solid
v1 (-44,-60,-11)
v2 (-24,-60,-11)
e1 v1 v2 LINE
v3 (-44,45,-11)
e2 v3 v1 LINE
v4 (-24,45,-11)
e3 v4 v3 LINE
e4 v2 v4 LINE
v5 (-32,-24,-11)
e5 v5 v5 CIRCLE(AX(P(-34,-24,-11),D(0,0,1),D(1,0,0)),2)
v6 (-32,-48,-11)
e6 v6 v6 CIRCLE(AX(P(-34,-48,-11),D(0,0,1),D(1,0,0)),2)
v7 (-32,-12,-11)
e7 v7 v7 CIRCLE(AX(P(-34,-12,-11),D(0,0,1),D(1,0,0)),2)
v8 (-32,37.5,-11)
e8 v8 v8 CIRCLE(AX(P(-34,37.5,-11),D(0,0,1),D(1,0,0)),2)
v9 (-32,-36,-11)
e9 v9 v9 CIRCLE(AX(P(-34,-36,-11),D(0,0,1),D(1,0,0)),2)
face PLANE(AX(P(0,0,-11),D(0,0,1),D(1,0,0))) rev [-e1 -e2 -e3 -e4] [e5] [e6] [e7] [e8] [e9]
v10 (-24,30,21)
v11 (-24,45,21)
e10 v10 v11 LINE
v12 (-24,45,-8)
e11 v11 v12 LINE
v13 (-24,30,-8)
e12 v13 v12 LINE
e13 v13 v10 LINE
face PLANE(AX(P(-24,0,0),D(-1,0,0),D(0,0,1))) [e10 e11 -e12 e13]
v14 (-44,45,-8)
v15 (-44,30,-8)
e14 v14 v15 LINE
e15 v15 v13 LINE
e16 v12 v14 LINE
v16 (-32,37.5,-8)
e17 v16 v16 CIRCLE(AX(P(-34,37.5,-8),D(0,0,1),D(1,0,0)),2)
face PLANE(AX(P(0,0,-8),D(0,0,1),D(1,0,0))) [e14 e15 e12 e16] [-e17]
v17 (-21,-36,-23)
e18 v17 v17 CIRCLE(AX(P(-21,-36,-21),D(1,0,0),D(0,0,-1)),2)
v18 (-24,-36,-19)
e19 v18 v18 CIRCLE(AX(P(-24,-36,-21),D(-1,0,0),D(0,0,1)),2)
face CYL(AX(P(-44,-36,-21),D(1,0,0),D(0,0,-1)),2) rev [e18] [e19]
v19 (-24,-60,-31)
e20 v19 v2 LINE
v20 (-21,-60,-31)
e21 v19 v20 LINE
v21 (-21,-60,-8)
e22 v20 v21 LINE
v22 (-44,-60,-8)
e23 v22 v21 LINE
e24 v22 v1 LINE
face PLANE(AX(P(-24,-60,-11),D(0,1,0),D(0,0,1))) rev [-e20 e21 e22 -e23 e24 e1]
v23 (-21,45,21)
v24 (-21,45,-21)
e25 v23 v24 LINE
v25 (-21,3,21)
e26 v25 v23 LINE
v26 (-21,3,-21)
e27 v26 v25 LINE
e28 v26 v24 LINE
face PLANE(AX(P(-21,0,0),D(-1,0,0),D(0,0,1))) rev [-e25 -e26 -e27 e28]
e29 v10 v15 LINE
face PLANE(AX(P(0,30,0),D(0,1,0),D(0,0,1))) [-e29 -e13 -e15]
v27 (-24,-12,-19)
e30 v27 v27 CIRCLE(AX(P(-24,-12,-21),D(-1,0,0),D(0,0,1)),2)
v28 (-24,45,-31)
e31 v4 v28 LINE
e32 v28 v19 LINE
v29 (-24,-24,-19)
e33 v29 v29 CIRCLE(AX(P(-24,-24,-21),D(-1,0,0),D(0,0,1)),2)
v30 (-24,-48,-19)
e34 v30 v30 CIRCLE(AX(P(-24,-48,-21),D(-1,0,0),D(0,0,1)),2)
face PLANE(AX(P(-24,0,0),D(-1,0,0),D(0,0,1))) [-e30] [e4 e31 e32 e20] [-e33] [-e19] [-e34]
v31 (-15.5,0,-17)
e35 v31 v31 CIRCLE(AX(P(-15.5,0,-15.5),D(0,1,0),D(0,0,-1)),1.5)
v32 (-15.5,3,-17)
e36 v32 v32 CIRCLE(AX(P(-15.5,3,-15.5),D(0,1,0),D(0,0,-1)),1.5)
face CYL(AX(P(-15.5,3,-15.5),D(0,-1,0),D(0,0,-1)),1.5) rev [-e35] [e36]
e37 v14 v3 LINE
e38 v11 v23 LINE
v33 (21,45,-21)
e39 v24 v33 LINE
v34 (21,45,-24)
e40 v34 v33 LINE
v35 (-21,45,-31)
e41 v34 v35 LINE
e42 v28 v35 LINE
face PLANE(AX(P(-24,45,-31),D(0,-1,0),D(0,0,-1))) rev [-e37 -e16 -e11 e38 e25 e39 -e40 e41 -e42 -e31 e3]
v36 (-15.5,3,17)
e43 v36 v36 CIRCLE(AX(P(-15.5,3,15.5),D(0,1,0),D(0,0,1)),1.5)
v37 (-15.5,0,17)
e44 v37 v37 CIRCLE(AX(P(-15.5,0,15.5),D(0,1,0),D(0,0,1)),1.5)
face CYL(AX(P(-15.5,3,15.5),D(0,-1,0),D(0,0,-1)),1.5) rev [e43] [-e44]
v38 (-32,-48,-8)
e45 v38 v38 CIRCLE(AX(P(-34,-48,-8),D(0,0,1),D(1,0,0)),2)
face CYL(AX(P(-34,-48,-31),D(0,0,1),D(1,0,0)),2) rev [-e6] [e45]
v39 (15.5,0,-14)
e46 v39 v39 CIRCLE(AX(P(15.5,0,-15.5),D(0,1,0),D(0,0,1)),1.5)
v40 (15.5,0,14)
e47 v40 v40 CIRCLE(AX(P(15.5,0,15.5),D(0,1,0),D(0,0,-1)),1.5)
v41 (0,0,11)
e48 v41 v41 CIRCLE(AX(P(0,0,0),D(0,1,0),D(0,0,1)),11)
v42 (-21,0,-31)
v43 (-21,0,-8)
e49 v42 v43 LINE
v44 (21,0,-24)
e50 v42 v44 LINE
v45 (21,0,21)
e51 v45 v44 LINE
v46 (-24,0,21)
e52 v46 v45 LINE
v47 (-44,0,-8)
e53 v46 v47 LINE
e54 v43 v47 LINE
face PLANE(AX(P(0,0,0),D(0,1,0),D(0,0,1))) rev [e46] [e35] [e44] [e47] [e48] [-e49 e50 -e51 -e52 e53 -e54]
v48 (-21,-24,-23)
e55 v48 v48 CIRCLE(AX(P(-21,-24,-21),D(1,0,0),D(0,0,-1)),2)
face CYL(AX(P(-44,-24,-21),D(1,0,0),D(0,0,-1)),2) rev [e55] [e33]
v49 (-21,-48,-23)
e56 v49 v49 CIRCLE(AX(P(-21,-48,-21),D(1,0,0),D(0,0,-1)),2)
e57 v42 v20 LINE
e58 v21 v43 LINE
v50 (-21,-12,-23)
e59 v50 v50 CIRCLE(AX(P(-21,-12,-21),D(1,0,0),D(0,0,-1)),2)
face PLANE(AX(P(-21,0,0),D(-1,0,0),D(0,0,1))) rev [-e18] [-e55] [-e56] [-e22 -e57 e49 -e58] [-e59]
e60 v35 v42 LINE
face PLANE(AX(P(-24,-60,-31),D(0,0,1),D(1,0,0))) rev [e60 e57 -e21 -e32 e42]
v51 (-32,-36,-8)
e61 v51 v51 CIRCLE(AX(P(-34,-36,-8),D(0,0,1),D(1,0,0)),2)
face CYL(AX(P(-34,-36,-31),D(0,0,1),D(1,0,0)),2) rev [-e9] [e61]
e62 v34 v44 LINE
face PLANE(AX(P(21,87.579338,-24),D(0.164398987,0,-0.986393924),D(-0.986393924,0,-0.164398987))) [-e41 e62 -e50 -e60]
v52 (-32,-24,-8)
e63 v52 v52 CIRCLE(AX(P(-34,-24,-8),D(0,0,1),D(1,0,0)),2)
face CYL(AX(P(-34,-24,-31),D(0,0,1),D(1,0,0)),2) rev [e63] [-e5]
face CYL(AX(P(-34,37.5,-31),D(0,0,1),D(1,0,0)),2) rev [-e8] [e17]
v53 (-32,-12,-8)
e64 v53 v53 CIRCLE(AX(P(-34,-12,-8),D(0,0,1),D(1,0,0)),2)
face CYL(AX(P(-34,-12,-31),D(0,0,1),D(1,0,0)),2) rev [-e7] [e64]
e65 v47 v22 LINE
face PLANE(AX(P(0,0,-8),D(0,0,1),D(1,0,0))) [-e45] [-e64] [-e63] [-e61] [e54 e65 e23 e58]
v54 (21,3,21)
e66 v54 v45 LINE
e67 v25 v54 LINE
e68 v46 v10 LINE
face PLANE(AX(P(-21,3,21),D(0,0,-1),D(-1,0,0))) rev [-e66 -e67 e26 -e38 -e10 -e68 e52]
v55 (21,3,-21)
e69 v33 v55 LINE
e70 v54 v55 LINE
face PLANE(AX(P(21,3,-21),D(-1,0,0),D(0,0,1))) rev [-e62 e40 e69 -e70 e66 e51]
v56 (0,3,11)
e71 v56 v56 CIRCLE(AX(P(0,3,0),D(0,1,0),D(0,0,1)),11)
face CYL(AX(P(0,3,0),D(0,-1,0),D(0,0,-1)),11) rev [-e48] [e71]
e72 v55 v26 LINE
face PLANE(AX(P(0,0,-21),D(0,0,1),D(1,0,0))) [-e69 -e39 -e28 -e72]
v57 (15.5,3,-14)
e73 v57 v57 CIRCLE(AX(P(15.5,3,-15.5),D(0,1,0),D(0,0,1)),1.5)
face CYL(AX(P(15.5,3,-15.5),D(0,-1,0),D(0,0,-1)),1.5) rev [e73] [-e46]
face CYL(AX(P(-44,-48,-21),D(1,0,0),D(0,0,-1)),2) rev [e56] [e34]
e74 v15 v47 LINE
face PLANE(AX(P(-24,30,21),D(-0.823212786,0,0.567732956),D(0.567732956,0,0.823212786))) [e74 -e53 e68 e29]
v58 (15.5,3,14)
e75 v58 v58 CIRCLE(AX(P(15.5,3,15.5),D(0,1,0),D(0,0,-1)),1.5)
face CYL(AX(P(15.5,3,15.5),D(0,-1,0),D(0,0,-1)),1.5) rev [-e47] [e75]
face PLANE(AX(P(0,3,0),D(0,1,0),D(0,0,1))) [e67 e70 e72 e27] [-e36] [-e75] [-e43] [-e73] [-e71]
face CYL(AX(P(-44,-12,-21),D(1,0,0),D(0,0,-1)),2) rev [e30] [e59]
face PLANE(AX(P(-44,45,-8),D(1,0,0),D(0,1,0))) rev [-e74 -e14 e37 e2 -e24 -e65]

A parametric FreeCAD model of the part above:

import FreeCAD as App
import Part
import Sketcher


def add_polygon(sketch, points):
    """Adds a closed chain of lines whose ends are joined by coincident constraints."""
    first, n = sketch.GeometryCount, len(points)
    for a, b in zip(points, points[1:] + points[:1]):
        sketch.addGeometry(Part.LineSegment(App.Vector(*a, 0), App.Vector(*b, 0)), False)
    for i in range(n):
        sketch.addConstraint(Sketcher.Constraint("Coincident", first + i, 2, first + (i + 1) % n, 1))

doc = App.newDocument("Part")
params = doc.addObject("Spreadsheet::Sheet", "Params")
for row, (alias, value) in enumerate([
    ("sketch1_diameter", "3 mm"),
    ("sketch1_diameter2", "22 mm"),
    ("sketch1_width", "42 mm"),
    ("pad1_length", "3 mm"),
    ("sketch2_width", "60 mm"),
    ("sketch2_width2", "45 mm"),
    ("sketch2_height", "32 mm"),
    ("sketch2_height2", "52 mm"),
    ("pad2_length", "3 mm"),
    ("sketch3_width", "42 mm"),
    ("sketch3_height", "45 mm"),
    ("pad3_length", "3 mm"),
    ("sketch4_width", "23 mm"),
    ("sketch4_width2", "3 mm"),
    ("sketch4_height", "60 mm"),
    ("sketch4_height2", "45 mm"),
    ("pad4_length", "3 mm"),
    ("sketch5_width", "20 mm"),
    ("sketch5_height", "29 mm"),
    ("pad5_length", "30 mm"),
    ("sketch6_diameter", "4 mm"),
    ("sketch7_width", "42 mm"),
    ("sketch7_height", "7 mm"),
    ("pad6_length", "45 mm"),
    ("sketch8_diameter", "4 mm"),
], start=1):
    params.set(f"A{row}", alias)
    params.set(f"B{row}", "=" + value)
    params.setAlias(f"B{row}", alias)

body = doc.addObject("PartDesign::Body", "Body")

# Sketch on XZ plane
sketch1 = doc.addObject("Sketcher::SketchObject", "Sketch")
body.addObject(sketch1)
sketch1.AttachmentSupport = (doc.XZ_Plane, [""])
sketch1.MapMode = "FlatFace"
add_polygon(sketch1, [(-21, -21), (-21, 21), (21, 21), (21, -21)])  # lines 0-3
sketch1.addGeometry(Part.Circle(App.Vector(-15.5, 15.5, 0), App.Vector(0, 0, 1), 1.5), False)  # 4
sketch1.addGeometry(Part.Circle(App.Vector(15.5, 15.5, 0), App.Vector(0, 0, 1), 1.5), False)  # 5
sketch1.addGeometry(Part.Circle(App.Vector(-15.5, -15.5, 0), App.Vector(0, 0, 1), 1.5), False)  # 6
sketch1.addGeometry(Part.Circle(App.Vector(0, 0, 0), App.Vector(0, 0, 1), 11), False)  # 7
sketch1.addGeometry(Part.Circle(App.Vector(15.5, -15.5, 0), App.Vector(0, 0, 1), 1.5), False)  # 8
sketch1.addConstraint([
    Sketcher.Constraint("Vertical", 0),
    Sketcher.Constraint("Horizontal", 1),
    Sketcher.Constraint("Vertical", 2),
    Sketcher.Constraint("Horizontal", 3),
    Sketcher.Constraint("Coincident", 7, 3, -1, 1),
    Sketcher.Constraint("Equal", 4, 5),
    Sketcher.Constraint("Equal", 5, 6),
    Sketcher.Constraint("Equal", 6, 8),
    Sketcher.Constraint("Symmetric", 5, 3, 6, 3, -1, 1),
    Sketcher.Constraint("Symmetric", 4, 3, 8, 3, -1, 1),
    Sketcher.Constraint("Symmetric", 0, 2, 2, 2, -1, 1),
    Sketcher.Constraint("Symmetric", 4, 3, 5, 3, -2),
    Sketcher.Constraint("Equal", 3, 0),
    Sketcher.Constraint("Diameter", 4, 3.0),
    Sketcher.Constraint("Diameter", 7, 22.0),
    Sketcher.Constraint("DistanceX", 1, 1, 1, 2, 42.0),
    Sketcher.Constraint("DistanceX", 4, 3, 5, 3, 31.0),
    Sketcher.Constraint("DistanceY", 6, 3, 4, 3, 31.0),
])
sketch1.setExpression("Constraints[17]", "Params.sketch1_diameter")
sketch1.setExpression("Constraints[18]", "Params.sketch1_diameter2")
sketch1.setExpression("Constraints[19]", "Params.sketch1_width")
pad1 = doc.addObject("PartDesign::Pad", "Pad")
body.addObject(pad1)
pad1.Profile = sketch1
pad1.setExpression("Length", "Params.pad1_length")
pad1.Reversed = True

# Sketch on YZ plane
sketch2 = doc.addObject("Sketcher::SketchObject", "Sketch001")
body.addObject(sketch2)
sketch2.AttachmentSupport = (doc.YZ_Plane, [""])
sketch2.MapMode = "FlatFace"
sketch2.AttachmentOffset = App.Placement(App.Vector(0, 0, -21), App.Rotation())
add_polygon(sketch2, [(-60, -11), (0, -11), (0, 21), (45, 21), (45, -31), (-60, -31)])  # lines 0-5
sketch2.addConstraint([
    Sketcher.Constraint("Horizontal", 0),
    Sketcher.Constraint("Vertical", 1),
    Sketcher.Constraint("Horizontal", 2),
    Sketcher.Constraint("Vertical", 3),
    Sketcher.Constraint("Horizontal", 4),
    Sketcher.Constraint("Vertical", 5),
    Sketcher.Constraint("PointOnObject", 0, 2, -2),
    Sketcher.Constraint("DistanceX", 0, 1, 0, 2, 60.0),
    Sketcher.Constraint("DistanceX", 2, 1, 2, 2, 45.0),
    Sketcher.Constraint("DistanceY", 1, 1, 1, 2, 32.0),
    Sketcher.Constraint("DistanceY", 3, 2, 3, 1, 52.0),
    Sketcher.Constraint("DistanceY", 0, 2, -1, 1, 11.0),
])
sketch2.setExpression("Constraints[13]", "Params.sketch2_width")
sketch2.setExpression("Constraints[14]", "Params.sketch2_width2")
sketch2.setExpression("Constraints[15]", "Params.sketch2_height")
sketch2.setExpression("Constraints[16]", "Params.sketch2_height2")
pad2 = doc.addObject("PartDesign::Pad", "Pad001")
body.addObject(pad2)
pad2.Profile = sketch2
pad2.setExpression("Length", "Params.pad2_length")
pad2.Reversed = True

# Sketch on XY plane
sketch3 = doc.addObject("Sketcher::SketchObject", "Sketch002")
body.addObject(sketch3)
sketch3.AttachmentSupport = (doc.XY_Plane, [""])
sketch3.MapMode = "FlatFace"
sketch3.AttachmentOffset = App.Placement(App.Vector(0, 0, -21), App.Rotation())
add_polygon(sketch3, [(21, 45), (21, 0), (-21, 0), (-21, 45)])  # lines 0-3
sketch3.addConstraint([
    Sketcher.Constraint("Vertical", 0),
    Sketcher.Constraint("Horizontal", 1),
    Sketcher.Constraint("Vertical", 2),
    Sketcher.Constraint("Horizontal", 3),
    Sketcher.Constraint("Symmetric", 0, 2, 1, 2, -1, 1),
    Sketcher.Constraint("DistanceX", 1, 2, 1, 1, 42.0),
    Sketcher.Constraint("DistanceY", 0, 2, 0, 1, 45.0),
])
sketch3.setExpression("Constraints[9]", "Params.sketch3_width")
sketch3.setExpression("Constraints[10]", "Params.sketch3_height")
pad3 = doc.addObject("PartDesign::Pad", "Pad002")
body.addObject(pad3)
pad3.Profile = sketch3
pad3.setExpression("Length", "Params.pad3_length")
pad3.Reversed = True

# Sketch on XY plane
sketch4 = doc.addObject("Sketcher::SketchObject", "Sketch003")
body.addObject(sketch4)
sketch4.AttachmentSupport = (doc.XY_Plane, [""])
sketch4.MapMode = "FlatFace"
sketch4.AttachmentOffset = App.Placement(App.Vector(0, 0, -11), App.Rotation())
add_polygon(sketch4, [(-44, -60), (-21, -60), (-21, 0), (-24, 0), (-24, 45), (-44, 45)])  # lines 0-5
sketch4.addConstraint([
    Sketcher.Constraint("Horizontal", 0),
    Sketcher.Constraint("Vertical", 1),
    Sketcher.Constraint("Horizontal", 2),
    Sketcher.Constraint("Vertical", 3),
    Sketcher.Constraint("Horizontal", 4),
    Sketcher.Constraint("Vertical", 5),
    Sketcher.Constraint("PointOnObject", 1, 2, -1),
    Sketcher.Constraint("DistanceX", 0, 1, 0, 2, 23.0),
    Sketcher.Constraint("DistanceX", 2, 2, 2, 1, 3.0),
    Sketcher.Constraint("DistanceY", 1, 1, 1, 2, 60.0),
    Sketcher.Constraint("DistanceY", 3, 1, 3, 2, 45.0),
    Sketcher.Constraint("DistanceX", 0, 2, -1, 1, 21.0),
])
sketch4.setExpression("Constraints[13]", "Params.sketch4_width")
sketch4.setExpression("Constraints[14]", "Params.sketch4_width2")
sketch4.setExpression("Constraints[15]", "Params.sketch4_height")
sketch4.setExpression("Constraints[16]", "Params.sketch4_height2")
pad4 = doc.addObject("PartDesign::Pad", "Pad003")
body.addObject(pad4)
pad4.Profile = sketch4
pad4.setExpression("Length", "Params.pad4_length")

# Sketch on XZ plane
sketch5 = doc.addObject("Sketcher::SketchObject", "Sketch004")
body.addObject(sketch5)
sketch5.AttachmentSupport = (doc.XZ_Plane, [""])
sketch5.MapMode = "FlatFace"
add_polygon(sketch5, [(-24, 21), (-44, -8), (-24, -8)])  # lines 0-2
sketch5.addConstraint([
    Sketcher.Constraint("Horizontal", 1),
    Sketcher.Constraint("Vertical", 2),
    Sketcher.Constraint("DistanceX", 1, 1, 1, 2, 20.0),
    Sketcher.Constraint("DistanceY", 2, 1, 2, 2, 29.0),
    Sketcher.Constraint("DistanceX", 0, 2, -1, 1, 44.0),
    Sketcher.Constraint("DistanceY", 0, 2, -1, 1, 8.0),
])
sketch5.setExpression("Constraints[5]", "Params.sketch5_width")
sketch5.setExpression("Constraints[6]", "Params.sketch5_height")
pad5 = doc.addObject("PartDesign::Pad", "Pad004")
body.addObject(pad5)
pad5.Profile = sketch5
pad5.setExpression("Length", "Params.pad5_length")
pad5.Reversed = True

# Sketch on XY plane
sketch6 = doc.addObject("Sketcher::SketchObject", "Sketch005")
body.addObject(sketch6)
sketch6.AttachmentSupport = (doc.XY_Plane, [""])
sketch6.MapMode = "FlatFace"
sketch6.AttachmentOffset = App.Placement(App.Vector(0, 0, -8), App.Rotation())
sketch6.addGeometry([
    Part.Circle(App.Vector(-34, 37.5, 0), App.Vector(0, 0, 1), 2),  # 0
    Part.Circle(App.Vector(-34, -12, 0), App.Vector(0, 0, 1), 2),  # 1
    Part.Circle(App.Vector(-34, -24, 0), App.Vector(0, 0, 1), 2),  # 2
    Part.Circle(App.Vector(-34, -36, 0), App.Vector(0, 0, 1), 2),  # 3
    Part.Circle(App.Vector(-34, -48, 0), App.Vector(0, 0, 1), 2),  # 4
], False)
sketch6.addConstraint([
    Sketcher.Constraint("Equal", 0, 1),
    Sketcher.Constraint("Equal", 1, 2),
    Sketcher.Constraint("Equal", 2, 3),
    Sketcher.Constraint("Equal", 3, 4),
    Sketcher.Constraint("Vertical", 0, 3, 1, 3),
    Sketcher.Constraint("Vertical", 1, 3, 2, 3),
    Sketcher.Constraint("Vertical", 2, 3, 3, 3),
    Sketcher.Constraint("Vertical", 3, 3, 4, 3),
    Sketcher.Constraint("Diameter", 0, 4.0),
    Sketcher.Constraint("DistanceX", 0, 3, -1, 1, 34.0),
    Sketcher.Constraint("DistanceY", 1, 3, -1, 1, 12.0),
    Sketcher.Constraint("DistanceY", 2, 3, -1, 1, 24.0),
    Sketcher.Constraint("DistanceY", 3, 3, -1, 1, 36.0),
    Sketcher.Constraint("DistanceY", 4, 3, -1, 1, 48.0),
    Sketcher.Constraint("DistanceY", -1, 1, 0, 3, 37.5),
])
sketch6.setExpression("Constraints[8]", "Params.sketch6_diameter")
pocket1 = doc.addObject("PartDesign::Pocket", "Pocket")
body.addObject(pocket1)
pocket1.Profile = sketch6
pocket1.Type = "ThroughAll"

# Sketch on XZ plane
sketch7 = doc.addObject("Sketcher::SketchObject", "Sketch006")
body.addObject(sketch7)
sketch7.AttachmentSupport = (doc.XZ_Plane, [""])
sketch7.MapMode = "FlatFace"
add_polygon(sketch7, [(-21, -31), (21, -24), (-21, -24)])  # lines 0-2
sketch7.addConstraint([
    Sketcher.Constraint("Horizontal", 1),
    Sketcher.Constraint("Vertical", 2),
    Sketcher.Constraint("DistanceX", 1, 2, 1, 1, 42.0),
    Sketcher.Constraint("DistanceY", 2, 2, 2, 1, 7.0),
    Sketcher.Constraint("DistanceX", -1, 1, 0, 2, 21.0),
    Sketcher.Constraint("DistanceY", 0, 2, -1, 1, 24.0),
])
sketch7.setExpression("Constraints[5]", "Params.sketch7_width")
sketch7.setExpression("Constraints[6]", "Params.sketch7_height")
pad6 = doc.addObject("PartDesign::Pad", "Pad005")
body.addObject(pad6)
pad6.Profile = sketch7
pad6.setExpression("Length", "Params.pad6_length")
pad6.Reversed = True

# Sketch on YZ plane
sketch8 = doc.addObject("Sketcher::SketchObject", "Sketch007")
body.addObject(sketch8)
sketch8.AttachmentSupport = (doc.YZ_Plane, [""])
sketch8.MapMode = "FlatFace"
sketch8.AttachmentOffset = App.Placement(App.Vector(0, 0, -21), App.Rotation())
sketch8.addGeometry([
    Part.Circle(App.Vector(-12, -21, 0), App.Vector(0, 0, 1), 2),
    Part.Circle(App.Vector(-24, -21, 0), App.Vector(0, 0, 1), 2),
    Part.Circle(App.Vector(-36, -21, 0), App.Vector(0, 0, 1), 2),
    Part.Circle(App.Vector(-48, -21, 0), App.Vector(0, 0, 1), 2),
], False)
sketch8.addConstraint([
    Sketcher.Constraint("Equal", 0, 1),
    Sketcher.Constraint("Equal", 1, 2),
    Sketcher.Constraint("Equal", 2, 3),
    Sketcher.Constraint("Horizontal", 0, 3, 1, 3),
    Sketcher.Constraint("Horizontal", 1, 3, 2, 3),
    Sketcher.Constraint("Horizontal", 2, 3, 3, 3),
    Sketcher.Constraint("Diameter", 0, 4.0),
    Sketcher.Constraint("DistanceX", 0, 3, -1, 1, 12.0),
    Sketcher.Constraint("DistanceY", 0, 3, -1, 1, 21.0),
    Sketcher.Constraint("DistanceX", 1, 3, -1, 1, 24.0),
    Sketcher.Constraint("DistanceX", 2, 3, -1, 1, 36.0),
    Sketcher.Constraint("DistanceX", 3, 3, -1, 1, 48.0),
])
sketch8.setExpression("Constraints[6]", "Params.sketch8_diameter")
pocket2 = doc.addObject("PartDesign::Pocket", "Pocket001")
body.addObject(pocket2)
pocket2.Profile = sketch8
pocket2.Type = "ThroughAll"

doc.recompute()
